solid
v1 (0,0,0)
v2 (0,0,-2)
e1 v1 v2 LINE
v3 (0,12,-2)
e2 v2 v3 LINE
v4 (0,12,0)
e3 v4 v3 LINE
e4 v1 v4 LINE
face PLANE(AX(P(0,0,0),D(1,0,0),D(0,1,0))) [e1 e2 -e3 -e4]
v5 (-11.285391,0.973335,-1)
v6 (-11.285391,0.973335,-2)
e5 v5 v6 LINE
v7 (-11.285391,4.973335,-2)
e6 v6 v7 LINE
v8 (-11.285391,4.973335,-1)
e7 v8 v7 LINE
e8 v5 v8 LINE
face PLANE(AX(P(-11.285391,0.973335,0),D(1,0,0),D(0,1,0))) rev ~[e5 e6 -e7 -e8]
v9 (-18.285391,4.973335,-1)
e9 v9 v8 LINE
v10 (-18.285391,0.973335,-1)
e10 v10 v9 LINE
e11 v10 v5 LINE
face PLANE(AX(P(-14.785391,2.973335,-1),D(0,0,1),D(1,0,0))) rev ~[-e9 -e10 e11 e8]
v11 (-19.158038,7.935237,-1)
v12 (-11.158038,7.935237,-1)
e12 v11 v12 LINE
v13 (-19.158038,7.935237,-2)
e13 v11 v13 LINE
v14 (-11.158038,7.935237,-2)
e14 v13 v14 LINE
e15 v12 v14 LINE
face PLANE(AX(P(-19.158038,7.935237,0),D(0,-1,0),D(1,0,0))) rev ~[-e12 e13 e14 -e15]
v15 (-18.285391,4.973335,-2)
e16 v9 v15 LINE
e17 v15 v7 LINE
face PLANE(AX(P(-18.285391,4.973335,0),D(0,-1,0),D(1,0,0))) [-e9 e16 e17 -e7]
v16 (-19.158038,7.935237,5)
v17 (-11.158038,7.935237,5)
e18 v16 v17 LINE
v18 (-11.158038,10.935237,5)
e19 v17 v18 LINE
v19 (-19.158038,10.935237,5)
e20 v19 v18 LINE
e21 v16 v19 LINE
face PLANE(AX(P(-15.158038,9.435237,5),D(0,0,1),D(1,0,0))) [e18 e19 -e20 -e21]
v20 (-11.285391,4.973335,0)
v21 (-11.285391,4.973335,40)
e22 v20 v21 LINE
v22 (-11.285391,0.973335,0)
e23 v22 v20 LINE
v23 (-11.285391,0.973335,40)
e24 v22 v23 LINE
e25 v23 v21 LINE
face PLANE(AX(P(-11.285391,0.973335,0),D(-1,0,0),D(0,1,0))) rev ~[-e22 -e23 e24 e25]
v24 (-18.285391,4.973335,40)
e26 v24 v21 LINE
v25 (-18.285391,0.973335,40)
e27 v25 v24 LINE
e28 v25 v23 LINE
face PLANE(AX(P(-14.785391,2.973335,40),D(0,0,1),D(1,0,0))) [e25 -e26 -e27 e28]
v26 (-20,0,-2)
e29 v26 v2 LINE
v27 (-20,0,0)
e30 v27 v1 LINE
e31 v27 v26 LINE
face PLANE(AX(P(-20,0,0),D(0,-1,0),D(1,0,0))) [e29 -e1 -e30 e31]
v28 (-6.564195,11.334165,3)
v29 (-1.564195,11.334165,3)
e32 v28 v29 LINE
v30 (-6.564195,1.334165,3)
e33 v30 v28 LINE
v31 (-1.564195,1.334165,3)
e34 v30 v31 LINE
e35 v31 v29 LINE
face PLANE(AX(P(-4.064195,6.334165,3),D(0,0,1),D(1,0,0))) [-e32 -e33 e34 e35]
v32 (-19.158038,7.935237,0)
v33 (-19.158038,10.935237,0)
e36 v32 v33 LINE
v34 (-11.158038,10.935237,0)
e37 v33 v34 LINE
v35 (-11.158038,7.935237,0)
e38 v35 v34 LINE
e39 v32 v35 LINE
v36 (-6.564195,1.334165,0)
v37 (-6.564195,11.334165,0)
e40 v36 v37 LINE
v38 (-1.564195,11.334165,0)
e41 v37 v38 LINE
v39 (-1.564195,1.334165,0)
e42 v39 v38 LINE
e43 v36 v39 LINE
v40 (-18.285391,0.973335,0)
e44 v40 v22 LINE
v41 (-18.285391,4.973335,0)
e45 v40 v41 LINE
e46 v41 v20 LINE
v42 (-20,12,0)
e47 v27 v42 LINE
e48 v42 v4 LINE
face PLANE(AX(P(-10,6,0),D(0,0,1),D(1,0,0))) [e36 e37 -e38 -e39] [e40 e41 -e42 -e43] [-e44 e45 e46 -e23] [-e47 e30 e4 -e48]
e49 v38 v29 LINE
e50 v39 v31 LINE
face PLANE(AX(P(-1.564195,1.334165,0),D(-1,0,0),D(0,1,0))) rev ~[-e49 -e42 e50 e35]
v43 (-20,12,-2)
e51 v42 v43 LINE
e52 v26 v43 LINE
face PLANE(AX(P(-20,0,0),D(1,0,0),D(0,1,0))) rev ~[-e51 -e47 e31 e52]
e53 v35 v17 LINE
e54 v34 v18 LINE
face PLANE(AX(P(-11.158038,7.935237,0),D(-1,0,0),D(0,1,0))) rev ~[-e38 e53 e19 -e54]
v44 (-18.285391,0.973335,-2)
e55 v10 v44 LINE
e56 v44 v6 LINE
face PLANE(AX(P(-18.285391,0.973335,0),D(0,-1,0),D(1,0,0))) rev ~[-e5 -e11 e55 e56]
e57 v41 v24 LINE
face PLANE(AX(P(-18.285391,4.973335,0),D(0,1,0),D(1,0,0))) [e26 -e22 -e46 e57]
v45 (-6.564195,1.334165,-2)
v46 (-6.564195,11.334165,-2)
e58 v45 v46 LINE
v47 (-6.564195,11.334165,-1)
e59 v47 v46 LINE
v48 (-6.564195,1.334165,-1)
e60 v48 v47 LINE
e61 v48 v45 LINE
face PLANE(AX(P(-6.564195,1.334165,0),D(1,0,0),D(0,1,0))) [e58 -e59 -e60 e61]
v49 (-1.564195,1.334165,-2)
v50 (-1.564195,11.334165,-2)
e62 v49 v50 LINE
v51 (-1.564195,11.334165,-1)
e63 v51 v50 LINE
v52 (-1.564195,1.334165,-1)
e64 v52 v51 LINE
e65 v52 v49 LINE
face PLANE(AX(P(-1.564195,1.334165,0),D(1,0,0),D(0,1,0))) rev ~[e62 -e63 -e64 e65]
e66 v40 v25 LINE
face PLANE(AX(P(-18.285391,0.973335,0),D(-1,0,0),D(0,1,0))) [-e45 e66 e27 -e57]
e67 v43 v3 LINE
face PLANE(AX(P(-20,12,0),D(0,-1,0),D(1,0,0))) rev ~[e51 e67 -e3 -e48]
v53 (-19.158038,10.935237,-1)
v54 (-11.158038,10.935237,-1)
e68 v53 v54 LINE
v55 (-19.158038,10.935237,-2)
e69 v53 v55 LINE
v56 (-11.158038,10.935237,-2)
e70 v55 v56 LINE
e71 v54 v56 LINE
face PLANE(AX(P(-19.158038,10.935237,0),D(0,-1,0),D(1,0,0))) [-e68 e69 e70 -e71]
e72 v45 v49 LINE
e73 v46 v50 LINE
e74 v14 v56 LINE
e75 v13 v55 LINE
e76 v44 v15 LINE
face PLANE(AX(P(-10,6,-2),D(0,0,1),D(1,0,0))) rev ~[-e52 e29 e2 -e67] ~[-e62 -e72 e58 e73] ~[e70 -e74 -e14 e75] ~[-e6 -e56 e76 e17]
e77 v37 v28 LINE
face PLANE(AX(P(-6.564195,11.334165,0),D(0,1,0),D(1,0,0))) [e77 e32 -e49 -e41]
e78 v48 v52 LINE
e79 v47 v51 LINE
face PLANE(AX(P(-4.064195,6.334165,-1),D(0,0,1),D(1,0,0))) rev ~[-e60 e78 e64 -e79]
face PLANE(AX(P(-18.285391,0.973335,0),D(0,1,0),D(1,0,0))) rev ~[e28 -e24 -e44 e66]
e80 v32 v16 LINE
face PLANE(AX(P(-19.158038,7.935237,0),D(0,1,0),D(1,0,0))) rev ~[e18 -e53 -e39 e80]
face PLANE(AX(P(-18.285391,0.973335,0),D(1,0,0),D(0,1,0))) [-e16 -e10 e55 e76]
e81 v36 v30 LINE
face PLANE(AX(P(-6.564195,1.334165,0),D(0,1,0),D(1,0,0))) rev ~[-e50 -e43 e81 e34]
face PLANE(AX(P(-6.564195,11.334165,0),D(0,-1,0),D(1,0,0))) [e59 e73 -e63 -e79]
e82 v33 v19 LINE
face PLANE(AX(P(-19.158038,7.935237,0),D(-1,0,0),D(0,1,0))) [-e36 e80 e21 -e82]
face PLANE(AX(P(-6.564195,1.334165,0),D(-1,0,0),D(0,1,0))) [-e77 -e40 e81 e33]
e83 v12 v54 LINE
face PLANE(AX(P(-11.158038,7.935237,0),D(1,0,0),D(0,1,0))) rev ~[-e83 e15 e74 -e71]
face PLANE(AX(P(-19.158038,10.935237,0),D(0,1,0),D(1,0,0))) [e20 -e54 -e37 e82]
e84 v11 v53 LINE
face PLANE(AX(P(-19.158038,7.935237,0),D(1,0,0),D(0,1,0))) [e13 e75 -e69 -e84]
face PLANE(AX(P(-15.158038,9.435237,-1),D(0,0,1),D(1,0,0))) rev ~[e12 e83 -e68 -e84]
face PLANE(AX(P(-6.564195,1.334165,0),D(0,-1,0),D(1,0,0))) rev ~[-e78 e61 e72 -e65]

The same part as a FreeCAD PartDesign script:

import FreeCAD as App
import Part
import Sketcher
from FreeCAD import Vector
Q = App.Units.Quantity

doc = App.newDocument("Part")
body = doc.addObject("PartDesign::Body", "Body")

sketch1 = body.newObject("Sketcher::SketchObject", "Sketch")
sketch1.AttachmentSupport = (doc.getObject("XY_Plane"), [""])
sketch1.MapMode = "FlatFace"
sketch1.addGeometry([
    Part.LineSegment(Vector(-19.158038, 10.935237, 0), Vector(-19.158038, 7.935237, 0)),
    Part.LineSegment(Vector(-19.158038, 7.935237, 0), Vector(-11.158038, 7.935237, 0)),
    Part.LineSegment(Vector(-11.158038, 7.935237, 0), Vector(-11.158038, 10.935237, 0)),
    Part.LineSegment(Vector(-11.158038, 10.935237, 0), Vector(-19.158038, 10.935237, 0)),
], False)
sketch1.addConstraint([
    Sketcher.Constraint("Coincident", 0, 2, 1, 1),
    Sketcher.Constraint("Coincident", 1, 2, 2, 1),
    Sketcher.Constraint("Coincident", 2, 2, 3, 1),
    Sketcher.Constraint("Coincident", 3, 2, 0, 1),
    Sketcher.Constraint("Vertical", 0),
    Sketcher.Constraint("Horizontal", 1),
    Sketcher.Constraint("Vertical", 2),
    Sketcher.Constraint("Horizontal", 3),
    Sketcher.Constraint("DistanceX", 1, 1, 1, 2, Q("8 mm")),
    Sketcher.Constraint("DistanceY", 0, 2, 0, 1, Q("3 mm")),
    Sketcher.Constraint("DistanceX", 0, 2, -1, 1, Q("19.158038 mm")),
    Sketcher.Constraint("DistanceY", -1, 1, 0, 2, Q("7.935237 mm")),
])
pad1 = body.newObject("PartDesign::Pad", "Pad")
pad1.Profile = sketch1
pad1.Length = 5
body2 = doc.addObject("PartDesign::Body", "Body001")

sketch2 = body2.newObject("Sketcher::SketchObject", "Sketch001")
sketch2.AttachmentSupport = (doc.getObject("XY_Plane001"), [""])
sketch2.MapMode = "FlatFace"
sketch2.addGeometry([
    Part.LineSegment(Vector(-18.285391, 4.973335, 0), Vector(-18.285391, 0.973335, 0)),
    Part.LineSegment(Vector(-18.285391, 0.973335, 0), Vector(-11.285391, 0.973335, 0)),
    Part.LineSegment(Vector(-11.285391, 0.973335, 0), Vector(-11.285391, 4.973335, 0)),
    Part.LineSegment(Vector(-11.285391, 4.973335, 0), Vector(-18.285391, 4.973335, 0)),
], False)
sketch2.addConstraint([
    Sketcher.Constraint("Coincident", 0, 2, 1, 1),
    Sketcher.Constraint("Coincident", 1, 2, 2, 1),
    Sketcher.Constraint("Coincident", 2, 2, 3, 1),
    Sketcher.Constraint("Coincident", 3, 2, 0, 1),
    Sketcher.Constraint("Vertical", 0),
    Sketcher.Constraint("Horizontal", 1),
    Sketcher.Constraint("Vertical", 2),
    Sketcher.Constraint("Horizontal", 3),
    Sketcher.Constraint("DistanceX", 1, 1, 1, 2, Q("7 mm")),
    Sketcher.Constraint("DistanceY", 0, 2, 0, 1, Q("4 mm")),
    Sketcher.Constraint("DistanceX", 0, 2, -1, 1, Q("18.285391 mm")),
    Sketcher.Constraint("DistanceY", -1, 1, 0, 2, Q("0.973335 mm")),
])
pad2 = body2.newObject("PartDesign::Pad", "Pad001")
pad2.Profile = sketch2
pad2.Length = 40
body3 = doc.addObject("PartDesign::Body", "Body002")

sketch3 = body3.newObject("Sketcher::SketchObject", "Sketch002")
sketch3.AttachmentSupport = (doc.getObject("XY_Plane002"), [""])
sketch3.MapMode = "FlatFace"
sketch3.addGeometry([
    Part.LineSegment(Vector(-6.564195, 11.334165, 0), Vector(-6.564195, 1.334165, 0)),
    Part.LineSegment(Vector(-6.564195, 1.334165, 0), Vector(-1.564195, 1.334165, 0)),
    Part.LineSegment(Vector(-1.564195, 1.334165, 0), Vector(-1.564195, 11.334165, 0)),
    Part.LineSegment(Vector(-1.564195, 11.334165, 0), Vector(-6.564195, 11.334165, 0)),
], False)
sketch3.addConstraint([
    Sketcher.Constraint("Coincident", 0, 2, 1, 1),
    Sketcher.Constraint("Coincident", 1, 2, 2, 1),
    Sketcher.Constraint("Coincident", 2, 2, 3, 1),
    Sketcher.Constraint("Coincident", 3, 2, 0, 1),
    Sketcher.Constraint("Vertical", 0),
    Sketcher.Constraint("Horizontal", 1),
    Sketcher.Constraint("Vertical", 2),
    Sketcher.Constraint("Horizontal", 3),
    Sketcher.Constraint("DistanceX", 1, 1, 1, 2, Q("5 mm")),
    Sketcher.Constraint("DistanceY", 0, 2, 0, 1, Q("10 mm")),
    Sketcher.Constraint("DistanceX", 0, 2, -1, 1, Q("6.564195 mm")),
    Sketcher.Constraint("DistanceY", -1, 1, 0, 2, Q("1.334165 mm")),
])
pad3 = body3.newObject("PartDesign::Pad", "Pad002")
pad3.Profile = sketch3
pad3.Length = 3
body.AllowCompound = True
doc.recompute()

boolean = body.newObject("PartDesign::Boolean", "Boolean")
boolean.Type = "Fuse"
boolean.addObjects([body2])
doc.recompute()

boolean2 = body.newObject("PartDesign::Boolean", "Boolean001")
boolean2.Type = "Fuse"
boolean2.addObjects([body3])

sketch4 = body.newObject("Sketcher::SketchObject", "Sketch003")
sketch4.AttachmentSupport = (doc.getObject("XY_Plane"), [""])
sketch4.MapMode = "FlatFace"
sketch4.addGeometry([
    Part.LineSegment(Vector(-20, 12, 0), Vector(-20, 0, 0)),
    Part.LineSegment(Vector(-20, 0, 0), Vector(0, 0, 0)),
    Part.LineSegment(Vector(0, 0, 0), Vector(0, 12, 0)),
    Part.LineSegment(Vector(0, 12, 0), Vector(-20, 12, 0)),
    Part.LineSegment(Vector(-11.285391, 0.973335, 0), Vector(-18.285391, 0.973335, 0)),
    Part.LineSegment(Vector(-18.285391, 0.973335, 0), Vector(-18.285391, 4.973335, 0)),
    Part.LineSegment(Vector(-18.285391, 4.973335, 0), Vector(-11.285391, 4.973335, 0)),
    Part.LineSegment(Vector(-11.285391, 4.973335, 0), Vector(-11.285391, 0.973335, 0)),
    Part.LineSegment(Vector(-11.158038, 7.935237, 0), Vector(-19.158038, 7.935237, 0)),
    Part.LineSegment(Vector(-19.158038, 7.935237, 0), Vector(-19.158038, 10.935237, 0)),
    Part.LineSegment(Vector(-19.158038, 10.935237, 0), Vector(-11.158038, 10.935237, 0)),
    Part.LineSegment(Vector(-11.158038, 10.935237, 0), Vector(-11.158038, 7.935237, 0)),
    Part.LineSegment(Vector(-1.564195, 1.334165, 0), Vector(-6.564195, 1.334165, 0)),
    Part.LineSegment(Vector(-6.564195, 1.334165, 0), Vector(-6.564195, 11.334165, 0)),
    Part.LineSegment(Vector(-6.564195, 11.334165, 0), Vector(-1.564195, 11.334165, 0)),
    Part.LineSegment(Vector(-1.564195, 11.334165, 0), Vector(-1.564195, 1.334165, 0)),
], False)
sketch4.addConstraint([
    Sketcher.Constraint("Coincident", 0, 2, 1, 1),
    Sketcher.Constraint("Coincident", 1, 2, 2, 1),
    Sketcher.Constraint("Coincident", 2, 2, 3, 1),
    Sketcher.Constraint("Coincident", 3, 2, 0, 1),
    Sketcher.Constraint("Coincident", 4, 2, 5, 1),
    Sketcher.Constraint("Coincident", 5, 2, 6, 1),
    Sketcher.Constraint("Coincident", 6, 2, 7, 1),
    Sketcher.Constraint("Coincident", 7, 2, 4, 1),
    Sketcher.Constraint("Coincident", 8, 2, 9, 1),
    Sketcher.Constraint("Coincident", 9, 2, 10, 1),
    Sketcher.Constraint("Coincident", 10, 2, 11, 1),
    Sketcher.Constraint("Coincident", 11, 2, 8, 1),
    Sketcher.Constraint("Coincident", 12, 2, 13, 1),
    Sketcher.Constraint("Coincident", 13, 2, 14, 1),
    Sketcher.Constraint("Coincident", 14, 2, 15, 1),
    Sketcher.Constraint("Coincident", 15, 2, 12, 1),
    Sketcher.Constraint("Vertical", 0),
    Sketcher.Constraint("Horizontal", 1),
    Sketcher.Constraint("Vertical", 2),
    Sketcher.Constraint("Horizontal", 3),
    Sketcher.Constraint("Horizontal", 4),
    Sketcher.Constraint("Vertical", 5),
    Sketcher.Constraint("Horizontal", 6),
    Sketcher.Constraint("Vertical", 7),
    Sketcher.Constraint("Horizontal", 8),
    Sketcher.Constraint("Vertical", 9),
    Sketcher.Constraint("Horizontal", 10),
    Sketcher.Constraint("Vertical", 11),
    Sketcher.Constraint("Horizontal", 12),
    Sketcher.Constraint("Vertical", 13),
    Sketcher.Constraint("Horizontal", 14),
    Sketcher.Constraint("Vertical", 15),
    Sketcher.Constraint("Coincident", 1, 2, -1, 1),
    Sketcher.Constraint("DistanceX", 1, 1, 1, 2, Q("20 mm")),
    Sketcher.Constraint("DistanceX", 4, 2, 4, 1, Q("7 mm")),
    Sketcher.Constraint("DistanceX", 8, 2, 8, 1, Q("8 mm")),
    Sketcher.Constraint("DistanceX", 12, 2, 12, 1, Q("5 mm")),
    Sketcher.Constraint("DistanceY", 0, 2, 0, 1, Q("12 mm")),
    Sketcher.Constraint("DistanceY", 5, 1, 5, 2, Q("4 mm")),
    Sketcher.Constraint("DistanceY", 9, 1, 9, 2, Q("3 mm")),
    Sketcher.Constraint("DistanceY", 13, 1, 13, 2, Q("10 mm")),
    Sketcher.Constraint("DistanceX", 4, 2, -1, 1, Q("18.285391 mm")),
    Sketcher.Constraint("DistanceY", 7, 2, 12, 2, Q("0.36083 mm")),
    Sketcher.Constraint("DistanceY", 12, 2, 11, 2, Q("6.601072 mm")),
    Sketcher.Constraint("DistanceY", -1, 1, 4, 2, Q("0.973335 mm")),
    Sketcher.Constraint("DistanceX", 8, 2, -1, 1, Q("19.158038 mm")),
    Sketcher.Constraint("DistanceX", 12, 2, -1, 1, Q("6.564195 mm")),
])
pad4 = body.newObject("PartDesign::Pad", "Pad003")
pad4.Profile = sketch4
pad4.Length = 2
pad4.Reversed = True

sketch5 = body.newObject("Sketcher::SketchObject", "Sketch004")
sketch5.AttachmentSupport = (doc.getObject("XY_Plane"), [""])
sketch5.MapMode = "FlatFace"
sketch5.addGeometry([
    Part.LineSegment(Vector(-18.285391, 4.973335, 0), Vector(-18.285391, 0.973335, 0)),
    Part.LineSegment(Vector(-18.285391, 0.973335, 0), Vector(-11.285391, 0.973335, 0)),
    Part.LineSegment(Vector(-11.285391, 0.973335, 0), Vector(-11.285391, 4.973335, 0)),
    Part.LineSegment(Vector(-11.285391, 4.973335, 0), Vector(-18.285391, 4.973335, 0)),
    Part.LineSegment(Vector(-19.158038, 10.935237, 0), Vector(-19.158038, 7.935237, 0)),
    Part.LineSegment(Vector(-19.158038, 7.935237, 0), Vector(-11.158038, 7.935237, 0)),
    Part.LineSegment(Vector(-11.158038, 7.935237, 0), Vector(-11.158038, 10.935237, 0)),
    Part.LineSegment(Vector(-11.158038, 10.935237, 0), Vector(-19.158038, 10.935237, 0)),
    Part.LineSegment(Vector(-6.564195, 11.334165, 0), Vector(-6.564195, 1.334165, 0)),
    Part.LineSegment(Vector(-6.564195, 1.334165, 0), Vector(-1.564195, 1.334165, 0)),
    Part.LineSegment(Vector(-1.564195, 1.334165, 0), Vector(-1.564195, 11.334165, 0)),
    Part.LineSegment(Vector(-1.564195, 11.334165, 0), Vector(-6.564195, 11.334165, 0)),
], False)
sketch5.addConstraint([
    Sketcher.Constraint("Coincident", 0, 2, 1, 1),
    Sketcher.Constraint("Coincident", 1, 2, 2, 1),
    Sketcher.Constraint("Coincident", 2, 2, 3, 1),
    Sketcher.Constraint("Coincident", 3, 2, 0, 1),
    Sketcher.Constraint("Coincident", 4, 2, 5, 1),
    Sketcher.Constraint("Coincident", 5, 2, 6, 1),
    Sketcher.Constraint("Coincident", 6, 2, 7, 1),
    Sketcher.Constraint("Coincident", 7, 2, 4, 1),
    Sketcher.Constraint("Coincident", 8, 2, 9, 1),
    Sketcher.Constraint("Coincident", 9, 2, 10, 1),
    Sketcher.Constraint("Coincident", 10, 2, 11, 1),
    Sketcher.Constraint("Coincident", 11, 2, 8, 1),
    Sketcher.Constraint("Vertical", 0),
    Sketcher.Constraint("Horizontal", 1),
    Sketcher.Constraint("Vertical", 2),
    Sketcher.Constraint("Horizontal", 3),
    Sketcher.Constraint("Vertical", 4),
    Sketcher.Constraint("Horizontal", 5),
    Sketcher.Constraint("Vertical", 6),
    Sketcher.Constraint("Horizontal", 7),
    Sketcher.Constraint("Vertical", 8),
    Sketcher.Constraint("Horizontal", 9),
    Sketcher.Constraint("Vertical", 10),
    Sketcher.Constraint("Horizontal", 11),
    Sketcher.Constraint("DistanceX", 1, 1, 1, 2, Q("7 mm")),
    Sketcher.Constraint("DistanceX", 5, 1, 5, 2, Q("8 mm")),
    Sketcher.Constraint("DistanceX", 9, 1, 9, 2, Q("5 mm")),
    Sketcher.Constraint("DistanceY", 0, 2, 0, 1, Q("4 mm")),
    Sketcher.Constraint("DistanceY", 4, 2, 4, 1, Q("3 mm")),
    Sketcher.Constraint("DistanceY", 8, 2, 8, 1, Q("10 mm")),
    Sketcher.Constraint("DistanceX", 0, 2, -1, 1, Q("18.285391 mm")),
    Sketcher.Constraint("DistanceY", 1, 2, 8, 2, Q("0.36083 mm")),
    Sketcher.Constraint("DistanceY", 8, 2, 5, 2, Q("6.601072 mm")),
    Sketcher.Constraint("DistanceY", -1, 1, 0, 2, Q("0.973335 mm")),
    Sketcher.Constraint("DistanceX", 4, 2, -1, 1, Q("19.158038 mm")),
    Sketcher.Constraint("DistanceX", 8, 2, -1, 1, Q("6.564195 mm")),
])
pad5 = body.newObject("PartDesign::Pad", "Pad004")
pad5.Profile = sketch5
pad5.Length = 1
pad5.Reversed = True

doc.recompute()
